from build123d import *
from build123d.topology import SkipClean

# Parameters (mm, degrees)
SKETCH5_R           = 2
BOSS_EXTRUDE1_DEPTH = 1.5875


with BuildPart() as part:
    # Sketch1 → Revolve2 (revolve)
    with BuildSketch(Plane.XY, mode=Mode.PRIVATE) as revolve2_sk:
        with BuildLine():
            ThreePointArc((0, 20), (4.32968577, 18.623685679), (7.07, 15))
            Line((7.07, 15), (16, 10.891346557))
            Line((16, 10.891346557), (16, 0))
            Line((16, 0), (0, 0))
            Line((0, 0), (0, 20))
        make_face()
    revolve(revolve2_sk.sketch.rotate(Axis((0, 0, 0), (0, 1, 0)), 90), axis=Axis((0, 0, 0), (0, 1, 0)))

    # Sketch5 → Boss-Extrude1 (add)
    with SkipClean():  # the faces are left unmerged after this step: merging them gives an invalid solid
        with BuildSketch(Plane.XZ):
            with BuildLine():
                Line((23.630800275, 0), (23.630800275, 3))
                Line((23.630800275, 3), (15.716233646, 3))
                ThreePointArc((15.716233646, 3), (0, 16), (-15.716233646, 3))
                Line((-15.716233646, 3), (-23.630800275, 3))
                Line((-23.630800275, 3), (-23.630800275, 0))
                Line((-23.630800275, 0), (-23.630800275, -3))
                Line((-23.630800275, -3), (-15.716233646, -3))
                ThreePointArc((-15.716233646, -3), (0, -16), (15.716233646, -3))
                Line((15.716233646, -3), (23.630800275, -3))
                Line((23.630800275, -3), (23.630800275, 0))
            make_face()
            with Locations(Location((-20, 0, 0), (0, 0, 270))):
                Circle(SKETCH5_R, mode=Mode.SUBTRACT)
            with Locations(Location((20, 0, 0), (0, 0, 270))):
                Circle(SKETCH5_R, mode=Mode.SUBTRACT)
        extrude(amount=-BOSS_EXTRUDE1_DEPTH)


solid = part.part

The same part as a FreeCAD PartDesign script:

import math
import FreeCAD as App
import Part
import Sketcher

doc = App.newDocument("Part")
body = doc.addObject("PartDesign::Body", "Body")

# Sketch on XY plane
sketch1 = body.newObject("Sketcher::SketchObject", "Sketch")
sketch1.AttachmentSupport = (doc.getObject("XY_Plane"), [""])
sketch1.MapMode = "FlatFace"
sketch1.addGeometry([
    Part.ArcOfCircle(Part.Circle(App.Vector(-0.000029, 12.501469, 0), App.Vector(0, 0, 1), 7.498531), math.radians(19.463284), math.radians(89.999778)),  # 0
    Part.LineSegment(App.Vector(0, 20, 0), App.Vector(0, 0, 0)),  # 1
    Part.LineSegment(App.Vector(0, 0, 0), App.Vector(16, 0, 0)),  # 2
    Part.LineSegment(App.Vector(16, 0, 0), App.Vector(16, 10.891347, 0)),  # 3
    Part.LineSegment(App.Vector(16, 10.891347, 0), App.Vector(7.07, 15, 0)),  # 4
], False)
sketch1.addConstraint([
    Sketcher.Constraint("Coincident", 0, 2, 1, 1),
    Sketcher.Constraint("Coincident", 1, 2, 2, 1),
    Sketcher.Constraint("Coincident", 2, 2, 3, 1),
    Sketcher.Constraint("Coincident", 3, 2, 4, 1),
    Sketcher.Constraint("Coincident", 4, 2, 0, 1),
    Sketcher.Constraint("Vertical", 1),
    Sketcher.Constraint("Horizontal", 2),
    Sketcher.Constraint("Vertical", 3),
    Sketcher.Constraint("Coincident", 1, 2, -1, 1),
    Sketcher.Constraint("DistanceX", 2, 1, 2, 2, 16.0),
    Sketcher.Constraint("DistanceY", 1, 2, 1, 1, 20.0),
    Sketcher.Constraint("DistanceY", -1, 1, 4, 2, 15.0),
    Sketcher.Constraint("DistanceX", -1, 1, 4, 2, 7.07),
    Sketcher.Constraint("Radius", 0, 7.498531),
    Sketcher.Constraint("Distance", 4, 9.829849),
])
revolution = body.newObject("PartDesign::Revolution", "Revolution")
revolution.Profile = sketch1
revolution.ReferenceAxis = (sketch1, ["V_Axis"])
revolution.Angle = 360

# Sketch on XZ plane
sketch2 = body.newObject("Sketcher::SketchObject", "Sketch001")
sketch2.AttachmentSupport = (doc.getObject("XZ_Plane"), [""])
sketch2.MapMode = "FlatFace"
sketch2.addGeometry([
    Part.LineSegment(App.Vector(23.6308, 3, 0), App.Vector(15.716234, 3, 0)),  # 0
    Part.ArcOfCircle(Part.Circle(App.Vector(0, 0, 0), App.Vector(0, 0, 1), 16), math.radians(10.806923), math.radians(169.193077)),  # 1
    Part.LineSegment(App.Vector(-15.716234, 3, 0), App.Vector(-23.6308, 3, 0)),  # 2
    Part.LineSegment(App.Vector(-23.6308, 3, 0), App.Vector(-23.6308, -3, 0)),  # 3
    Part.LineSegment(App.Vector(-23.6308, -3, 0), App.Vector(-15.716234, -3, 0)),  # 4
    Part.ArcOfCircle(Part.Circle(App.Vector(0, 0, 0), App.Vector(0, 0, 1), 16), math.radians(-169.193077), math.radians(-10.806923)),  # 5
    Part.LineSegment(App.Vector(15.716234, -3, 0), App.Vector(23.6308, -3, 0)),  # 6
    Part.LineSegment(App.Vector(23.6308, -3, 0), App.Vector(23.6308, 3, 0)),  # 7
    Part.Circle(App.Vector(-20, 0, 0), App.Vector(0, 0, 1), 2),  # 8
    Part.Circle(App.Vector(20, 0, 0), App.Vector(0, 0, 1), 2),  # 9
], False)
sketch2.addConstraint([
    Sketcher.Constraint("Coincident", 0, 2, 1, 1),
    Sketcher.Constraint("Coincident", 1, 2, 2, 1),
    Sketcher.Constraint("Coincident", 2, 2, 3, 1),
    Sketcher.Constraint("Coincident", 3, 2, 4, 1),
    Sketcher.Constraint("Coincident", 4, 2, 5, 1),
    Sketcher.Constraint("Coincident", 5, 2, 6, 1),
    Sketcher.Constraint("Coincident", 6, 2, 7, 1),
    Sketcher.Constraint("Coincident", 7, 2, 0, 1),
    Sketcher.Constraint("Horizontal", 0),
    Sketcher.Constraint("Horizontal", 2),
    Sketcher.Constraint("Vertical", 3),
    Sketcher.Constraint("Horizontal", 4),
    Sketcher.Constraint("Horizontal", 6),
    Sketcher.Constraint("Vertical", 7),
    Sketcher.Constraint("Coincident", 1, 3, -1, 1),
    Sketcher.Constraint("Coincident", 5, 3, -1, 1),
    Sketcher.Constraint("Equal", 1, 5),
    Sketcher.Constraint("Equal", 8, 9),
    Sketcher.Constraint("Symmetric", 8, 3, 9, 3, -1, 1),
    Sketcher.Constraint("Symmetric", 2, 2, 6, 2, -1, 1),
    Sketcher.Constraint("PointOnObject", 8, 3, -1),
    Sketcher.Constraint("Horizontal", 0, 2, 1, 2),
    Sketcher.Constraint("Horizontal", 4, 2, 5, 2),
    Sketcher.Constraint("Diameter", 8, 4.0),
    Sketcher.Constraint("Radius", 1, 16.0),
    Sketcher.Constraint("DistanceY", 3, 2, 3, 1, 6.0),
    Sketcher.Constraint("DistanceX", 8, 3, -1, 1, 20.0),
    Sketcher.Constraint("DistanceX", 2, 2, -1, 1, 23.6308),
])
pad1 = body.newObject("PartDesign::Pad", "Pad")
pad1.Profile = sketch2
pad1.Length = 1.5875
pad1.Reversed = True

doc.recompute()
